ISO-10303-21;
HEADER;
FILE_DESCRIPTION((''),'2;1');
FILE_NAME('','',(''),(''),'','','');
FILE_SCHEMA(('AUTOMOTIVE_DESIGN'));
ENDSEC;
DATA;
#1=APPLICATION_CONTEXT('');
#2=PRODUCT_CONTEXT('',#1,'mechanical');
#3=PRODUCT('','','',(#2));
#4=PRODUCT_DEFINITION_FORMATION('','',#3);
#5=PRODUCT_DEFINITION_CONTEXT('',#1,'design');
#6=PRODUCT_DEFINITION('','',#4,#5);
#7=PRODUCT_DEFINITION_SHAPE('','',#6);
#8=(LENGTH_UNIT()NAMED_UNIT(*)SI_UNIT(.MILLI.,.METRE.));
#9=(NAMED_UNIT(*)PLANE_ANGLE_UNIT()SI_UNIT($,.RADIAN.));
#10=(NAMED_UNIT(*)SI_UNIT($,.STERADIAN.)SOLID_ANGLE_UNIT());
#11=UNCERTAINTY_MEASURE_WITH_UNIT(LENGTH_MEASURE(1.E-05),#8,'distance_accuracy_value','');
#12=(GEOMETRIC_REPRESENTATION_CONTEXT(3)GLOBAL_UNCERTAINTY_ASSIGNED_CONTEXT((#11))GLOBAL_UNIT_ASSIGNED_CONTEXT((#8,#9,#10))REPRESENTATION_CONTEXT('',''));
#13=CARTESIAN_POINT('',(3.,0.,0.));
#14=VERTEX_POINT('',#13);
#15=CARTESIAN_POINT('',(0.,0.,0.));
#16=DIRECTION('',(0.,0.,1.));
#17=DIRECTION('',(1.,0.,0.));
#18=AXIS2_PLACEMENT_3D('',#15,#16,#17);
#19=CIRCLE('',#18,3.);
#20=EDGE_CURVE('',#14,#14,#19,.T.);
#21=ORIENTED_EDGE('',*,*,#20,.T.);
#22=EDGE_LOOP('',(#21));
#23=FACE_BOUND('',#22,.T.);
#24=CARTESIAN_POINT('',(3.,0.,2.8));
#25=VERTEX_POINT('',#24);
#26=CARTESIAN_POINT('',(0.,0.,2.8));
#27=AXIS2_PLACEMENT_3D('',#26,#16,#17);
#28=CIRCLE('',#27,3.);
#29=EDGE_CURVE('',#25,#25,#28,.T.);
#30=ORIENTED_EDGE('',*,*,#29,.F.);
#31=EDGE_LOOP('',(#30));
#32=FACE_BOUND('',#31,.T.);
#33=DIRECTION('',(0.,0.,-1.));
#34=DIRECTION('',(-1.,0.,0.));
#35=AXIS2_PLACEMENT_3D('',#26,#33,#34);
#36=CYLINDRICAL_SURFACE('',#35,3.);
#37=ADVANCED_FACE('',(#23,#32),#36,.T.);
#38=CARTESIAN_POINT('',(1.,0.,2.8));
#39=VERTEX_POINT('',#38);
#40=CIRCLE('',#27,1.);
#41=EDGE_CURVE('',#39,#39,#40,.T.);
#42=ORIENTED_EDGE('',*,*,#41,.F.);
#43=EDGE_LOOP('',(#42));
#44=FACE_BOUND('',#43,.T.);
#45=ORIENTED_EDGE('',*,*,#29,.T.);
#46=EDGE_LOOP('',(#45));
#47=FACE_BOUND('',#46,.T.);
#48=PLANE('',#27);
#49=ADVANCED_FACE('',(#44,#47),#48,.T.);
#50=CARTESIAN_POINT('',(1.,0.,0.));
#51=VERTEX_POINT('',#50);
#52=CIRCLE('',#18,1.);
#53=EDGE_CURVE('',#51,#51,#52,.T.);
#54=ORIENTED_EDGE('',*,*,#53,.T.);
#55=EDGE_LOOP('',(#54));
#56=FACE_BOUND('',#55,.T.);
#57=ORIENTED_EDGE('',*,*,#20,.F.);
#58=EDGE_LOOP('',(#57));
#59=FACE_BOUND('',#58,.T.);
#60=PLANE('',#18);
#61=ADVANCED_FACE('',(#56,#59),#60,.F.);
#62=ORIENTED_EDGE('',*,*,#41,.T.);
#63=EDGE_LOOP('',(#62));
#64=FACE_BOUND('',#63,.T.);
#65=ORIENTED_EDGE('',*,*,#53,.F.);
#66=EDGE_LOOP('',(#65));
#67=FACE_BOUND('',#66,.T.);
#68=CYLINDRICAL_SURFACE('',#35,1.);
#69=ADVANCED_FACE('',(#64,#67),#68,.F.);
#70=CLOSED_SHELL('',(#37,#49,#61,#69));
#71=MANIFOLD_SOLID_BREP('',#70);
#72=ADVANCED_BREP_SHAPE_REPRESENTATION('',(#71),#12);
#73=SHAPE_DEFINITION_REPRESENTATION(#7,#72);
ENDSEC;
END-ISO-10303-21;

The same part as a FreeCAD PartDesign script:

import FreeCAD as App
import Part
import Sketcher
Q = App.Units.Quantity

doc = App.newDocument("Part")
body = doc.addObject("PartDesign::Body", "Body")

sketch1 = body.newObject("Sketcher::SketchObject", "Sketch")
sketch1.AttachmentSupport = (doc.getObject("XY_Plane"), [""])
sketch1.MapMode = "FlatFace"
sketch1.addGeometry([
    Part.Circle(App.Vector(0, 0, 0), App.Vector(0, 0, 1), 3),
    Part.Circle(App.Vector(0, 0, 0), App.Vector(0, 0, 1), 1),
], False)
sketch1.addConstraint([
    Sketcher.Constraint("Coincident", 0, 3, -1, 1),
    Sketcher.Constraint("Coincident", 1, 3, -1, 1),
    Sketcher.Constraint("Diameter", 0, Q("6 mm")),
    Sketcher.Constraint("Diameter", 1, Q("2 mm")),
])
pad1 = body.newObject("PartDesign::Pad", "Pad")
pad1.Profile = sketch1
pad1.Length = 2.8

doc.recompute()
